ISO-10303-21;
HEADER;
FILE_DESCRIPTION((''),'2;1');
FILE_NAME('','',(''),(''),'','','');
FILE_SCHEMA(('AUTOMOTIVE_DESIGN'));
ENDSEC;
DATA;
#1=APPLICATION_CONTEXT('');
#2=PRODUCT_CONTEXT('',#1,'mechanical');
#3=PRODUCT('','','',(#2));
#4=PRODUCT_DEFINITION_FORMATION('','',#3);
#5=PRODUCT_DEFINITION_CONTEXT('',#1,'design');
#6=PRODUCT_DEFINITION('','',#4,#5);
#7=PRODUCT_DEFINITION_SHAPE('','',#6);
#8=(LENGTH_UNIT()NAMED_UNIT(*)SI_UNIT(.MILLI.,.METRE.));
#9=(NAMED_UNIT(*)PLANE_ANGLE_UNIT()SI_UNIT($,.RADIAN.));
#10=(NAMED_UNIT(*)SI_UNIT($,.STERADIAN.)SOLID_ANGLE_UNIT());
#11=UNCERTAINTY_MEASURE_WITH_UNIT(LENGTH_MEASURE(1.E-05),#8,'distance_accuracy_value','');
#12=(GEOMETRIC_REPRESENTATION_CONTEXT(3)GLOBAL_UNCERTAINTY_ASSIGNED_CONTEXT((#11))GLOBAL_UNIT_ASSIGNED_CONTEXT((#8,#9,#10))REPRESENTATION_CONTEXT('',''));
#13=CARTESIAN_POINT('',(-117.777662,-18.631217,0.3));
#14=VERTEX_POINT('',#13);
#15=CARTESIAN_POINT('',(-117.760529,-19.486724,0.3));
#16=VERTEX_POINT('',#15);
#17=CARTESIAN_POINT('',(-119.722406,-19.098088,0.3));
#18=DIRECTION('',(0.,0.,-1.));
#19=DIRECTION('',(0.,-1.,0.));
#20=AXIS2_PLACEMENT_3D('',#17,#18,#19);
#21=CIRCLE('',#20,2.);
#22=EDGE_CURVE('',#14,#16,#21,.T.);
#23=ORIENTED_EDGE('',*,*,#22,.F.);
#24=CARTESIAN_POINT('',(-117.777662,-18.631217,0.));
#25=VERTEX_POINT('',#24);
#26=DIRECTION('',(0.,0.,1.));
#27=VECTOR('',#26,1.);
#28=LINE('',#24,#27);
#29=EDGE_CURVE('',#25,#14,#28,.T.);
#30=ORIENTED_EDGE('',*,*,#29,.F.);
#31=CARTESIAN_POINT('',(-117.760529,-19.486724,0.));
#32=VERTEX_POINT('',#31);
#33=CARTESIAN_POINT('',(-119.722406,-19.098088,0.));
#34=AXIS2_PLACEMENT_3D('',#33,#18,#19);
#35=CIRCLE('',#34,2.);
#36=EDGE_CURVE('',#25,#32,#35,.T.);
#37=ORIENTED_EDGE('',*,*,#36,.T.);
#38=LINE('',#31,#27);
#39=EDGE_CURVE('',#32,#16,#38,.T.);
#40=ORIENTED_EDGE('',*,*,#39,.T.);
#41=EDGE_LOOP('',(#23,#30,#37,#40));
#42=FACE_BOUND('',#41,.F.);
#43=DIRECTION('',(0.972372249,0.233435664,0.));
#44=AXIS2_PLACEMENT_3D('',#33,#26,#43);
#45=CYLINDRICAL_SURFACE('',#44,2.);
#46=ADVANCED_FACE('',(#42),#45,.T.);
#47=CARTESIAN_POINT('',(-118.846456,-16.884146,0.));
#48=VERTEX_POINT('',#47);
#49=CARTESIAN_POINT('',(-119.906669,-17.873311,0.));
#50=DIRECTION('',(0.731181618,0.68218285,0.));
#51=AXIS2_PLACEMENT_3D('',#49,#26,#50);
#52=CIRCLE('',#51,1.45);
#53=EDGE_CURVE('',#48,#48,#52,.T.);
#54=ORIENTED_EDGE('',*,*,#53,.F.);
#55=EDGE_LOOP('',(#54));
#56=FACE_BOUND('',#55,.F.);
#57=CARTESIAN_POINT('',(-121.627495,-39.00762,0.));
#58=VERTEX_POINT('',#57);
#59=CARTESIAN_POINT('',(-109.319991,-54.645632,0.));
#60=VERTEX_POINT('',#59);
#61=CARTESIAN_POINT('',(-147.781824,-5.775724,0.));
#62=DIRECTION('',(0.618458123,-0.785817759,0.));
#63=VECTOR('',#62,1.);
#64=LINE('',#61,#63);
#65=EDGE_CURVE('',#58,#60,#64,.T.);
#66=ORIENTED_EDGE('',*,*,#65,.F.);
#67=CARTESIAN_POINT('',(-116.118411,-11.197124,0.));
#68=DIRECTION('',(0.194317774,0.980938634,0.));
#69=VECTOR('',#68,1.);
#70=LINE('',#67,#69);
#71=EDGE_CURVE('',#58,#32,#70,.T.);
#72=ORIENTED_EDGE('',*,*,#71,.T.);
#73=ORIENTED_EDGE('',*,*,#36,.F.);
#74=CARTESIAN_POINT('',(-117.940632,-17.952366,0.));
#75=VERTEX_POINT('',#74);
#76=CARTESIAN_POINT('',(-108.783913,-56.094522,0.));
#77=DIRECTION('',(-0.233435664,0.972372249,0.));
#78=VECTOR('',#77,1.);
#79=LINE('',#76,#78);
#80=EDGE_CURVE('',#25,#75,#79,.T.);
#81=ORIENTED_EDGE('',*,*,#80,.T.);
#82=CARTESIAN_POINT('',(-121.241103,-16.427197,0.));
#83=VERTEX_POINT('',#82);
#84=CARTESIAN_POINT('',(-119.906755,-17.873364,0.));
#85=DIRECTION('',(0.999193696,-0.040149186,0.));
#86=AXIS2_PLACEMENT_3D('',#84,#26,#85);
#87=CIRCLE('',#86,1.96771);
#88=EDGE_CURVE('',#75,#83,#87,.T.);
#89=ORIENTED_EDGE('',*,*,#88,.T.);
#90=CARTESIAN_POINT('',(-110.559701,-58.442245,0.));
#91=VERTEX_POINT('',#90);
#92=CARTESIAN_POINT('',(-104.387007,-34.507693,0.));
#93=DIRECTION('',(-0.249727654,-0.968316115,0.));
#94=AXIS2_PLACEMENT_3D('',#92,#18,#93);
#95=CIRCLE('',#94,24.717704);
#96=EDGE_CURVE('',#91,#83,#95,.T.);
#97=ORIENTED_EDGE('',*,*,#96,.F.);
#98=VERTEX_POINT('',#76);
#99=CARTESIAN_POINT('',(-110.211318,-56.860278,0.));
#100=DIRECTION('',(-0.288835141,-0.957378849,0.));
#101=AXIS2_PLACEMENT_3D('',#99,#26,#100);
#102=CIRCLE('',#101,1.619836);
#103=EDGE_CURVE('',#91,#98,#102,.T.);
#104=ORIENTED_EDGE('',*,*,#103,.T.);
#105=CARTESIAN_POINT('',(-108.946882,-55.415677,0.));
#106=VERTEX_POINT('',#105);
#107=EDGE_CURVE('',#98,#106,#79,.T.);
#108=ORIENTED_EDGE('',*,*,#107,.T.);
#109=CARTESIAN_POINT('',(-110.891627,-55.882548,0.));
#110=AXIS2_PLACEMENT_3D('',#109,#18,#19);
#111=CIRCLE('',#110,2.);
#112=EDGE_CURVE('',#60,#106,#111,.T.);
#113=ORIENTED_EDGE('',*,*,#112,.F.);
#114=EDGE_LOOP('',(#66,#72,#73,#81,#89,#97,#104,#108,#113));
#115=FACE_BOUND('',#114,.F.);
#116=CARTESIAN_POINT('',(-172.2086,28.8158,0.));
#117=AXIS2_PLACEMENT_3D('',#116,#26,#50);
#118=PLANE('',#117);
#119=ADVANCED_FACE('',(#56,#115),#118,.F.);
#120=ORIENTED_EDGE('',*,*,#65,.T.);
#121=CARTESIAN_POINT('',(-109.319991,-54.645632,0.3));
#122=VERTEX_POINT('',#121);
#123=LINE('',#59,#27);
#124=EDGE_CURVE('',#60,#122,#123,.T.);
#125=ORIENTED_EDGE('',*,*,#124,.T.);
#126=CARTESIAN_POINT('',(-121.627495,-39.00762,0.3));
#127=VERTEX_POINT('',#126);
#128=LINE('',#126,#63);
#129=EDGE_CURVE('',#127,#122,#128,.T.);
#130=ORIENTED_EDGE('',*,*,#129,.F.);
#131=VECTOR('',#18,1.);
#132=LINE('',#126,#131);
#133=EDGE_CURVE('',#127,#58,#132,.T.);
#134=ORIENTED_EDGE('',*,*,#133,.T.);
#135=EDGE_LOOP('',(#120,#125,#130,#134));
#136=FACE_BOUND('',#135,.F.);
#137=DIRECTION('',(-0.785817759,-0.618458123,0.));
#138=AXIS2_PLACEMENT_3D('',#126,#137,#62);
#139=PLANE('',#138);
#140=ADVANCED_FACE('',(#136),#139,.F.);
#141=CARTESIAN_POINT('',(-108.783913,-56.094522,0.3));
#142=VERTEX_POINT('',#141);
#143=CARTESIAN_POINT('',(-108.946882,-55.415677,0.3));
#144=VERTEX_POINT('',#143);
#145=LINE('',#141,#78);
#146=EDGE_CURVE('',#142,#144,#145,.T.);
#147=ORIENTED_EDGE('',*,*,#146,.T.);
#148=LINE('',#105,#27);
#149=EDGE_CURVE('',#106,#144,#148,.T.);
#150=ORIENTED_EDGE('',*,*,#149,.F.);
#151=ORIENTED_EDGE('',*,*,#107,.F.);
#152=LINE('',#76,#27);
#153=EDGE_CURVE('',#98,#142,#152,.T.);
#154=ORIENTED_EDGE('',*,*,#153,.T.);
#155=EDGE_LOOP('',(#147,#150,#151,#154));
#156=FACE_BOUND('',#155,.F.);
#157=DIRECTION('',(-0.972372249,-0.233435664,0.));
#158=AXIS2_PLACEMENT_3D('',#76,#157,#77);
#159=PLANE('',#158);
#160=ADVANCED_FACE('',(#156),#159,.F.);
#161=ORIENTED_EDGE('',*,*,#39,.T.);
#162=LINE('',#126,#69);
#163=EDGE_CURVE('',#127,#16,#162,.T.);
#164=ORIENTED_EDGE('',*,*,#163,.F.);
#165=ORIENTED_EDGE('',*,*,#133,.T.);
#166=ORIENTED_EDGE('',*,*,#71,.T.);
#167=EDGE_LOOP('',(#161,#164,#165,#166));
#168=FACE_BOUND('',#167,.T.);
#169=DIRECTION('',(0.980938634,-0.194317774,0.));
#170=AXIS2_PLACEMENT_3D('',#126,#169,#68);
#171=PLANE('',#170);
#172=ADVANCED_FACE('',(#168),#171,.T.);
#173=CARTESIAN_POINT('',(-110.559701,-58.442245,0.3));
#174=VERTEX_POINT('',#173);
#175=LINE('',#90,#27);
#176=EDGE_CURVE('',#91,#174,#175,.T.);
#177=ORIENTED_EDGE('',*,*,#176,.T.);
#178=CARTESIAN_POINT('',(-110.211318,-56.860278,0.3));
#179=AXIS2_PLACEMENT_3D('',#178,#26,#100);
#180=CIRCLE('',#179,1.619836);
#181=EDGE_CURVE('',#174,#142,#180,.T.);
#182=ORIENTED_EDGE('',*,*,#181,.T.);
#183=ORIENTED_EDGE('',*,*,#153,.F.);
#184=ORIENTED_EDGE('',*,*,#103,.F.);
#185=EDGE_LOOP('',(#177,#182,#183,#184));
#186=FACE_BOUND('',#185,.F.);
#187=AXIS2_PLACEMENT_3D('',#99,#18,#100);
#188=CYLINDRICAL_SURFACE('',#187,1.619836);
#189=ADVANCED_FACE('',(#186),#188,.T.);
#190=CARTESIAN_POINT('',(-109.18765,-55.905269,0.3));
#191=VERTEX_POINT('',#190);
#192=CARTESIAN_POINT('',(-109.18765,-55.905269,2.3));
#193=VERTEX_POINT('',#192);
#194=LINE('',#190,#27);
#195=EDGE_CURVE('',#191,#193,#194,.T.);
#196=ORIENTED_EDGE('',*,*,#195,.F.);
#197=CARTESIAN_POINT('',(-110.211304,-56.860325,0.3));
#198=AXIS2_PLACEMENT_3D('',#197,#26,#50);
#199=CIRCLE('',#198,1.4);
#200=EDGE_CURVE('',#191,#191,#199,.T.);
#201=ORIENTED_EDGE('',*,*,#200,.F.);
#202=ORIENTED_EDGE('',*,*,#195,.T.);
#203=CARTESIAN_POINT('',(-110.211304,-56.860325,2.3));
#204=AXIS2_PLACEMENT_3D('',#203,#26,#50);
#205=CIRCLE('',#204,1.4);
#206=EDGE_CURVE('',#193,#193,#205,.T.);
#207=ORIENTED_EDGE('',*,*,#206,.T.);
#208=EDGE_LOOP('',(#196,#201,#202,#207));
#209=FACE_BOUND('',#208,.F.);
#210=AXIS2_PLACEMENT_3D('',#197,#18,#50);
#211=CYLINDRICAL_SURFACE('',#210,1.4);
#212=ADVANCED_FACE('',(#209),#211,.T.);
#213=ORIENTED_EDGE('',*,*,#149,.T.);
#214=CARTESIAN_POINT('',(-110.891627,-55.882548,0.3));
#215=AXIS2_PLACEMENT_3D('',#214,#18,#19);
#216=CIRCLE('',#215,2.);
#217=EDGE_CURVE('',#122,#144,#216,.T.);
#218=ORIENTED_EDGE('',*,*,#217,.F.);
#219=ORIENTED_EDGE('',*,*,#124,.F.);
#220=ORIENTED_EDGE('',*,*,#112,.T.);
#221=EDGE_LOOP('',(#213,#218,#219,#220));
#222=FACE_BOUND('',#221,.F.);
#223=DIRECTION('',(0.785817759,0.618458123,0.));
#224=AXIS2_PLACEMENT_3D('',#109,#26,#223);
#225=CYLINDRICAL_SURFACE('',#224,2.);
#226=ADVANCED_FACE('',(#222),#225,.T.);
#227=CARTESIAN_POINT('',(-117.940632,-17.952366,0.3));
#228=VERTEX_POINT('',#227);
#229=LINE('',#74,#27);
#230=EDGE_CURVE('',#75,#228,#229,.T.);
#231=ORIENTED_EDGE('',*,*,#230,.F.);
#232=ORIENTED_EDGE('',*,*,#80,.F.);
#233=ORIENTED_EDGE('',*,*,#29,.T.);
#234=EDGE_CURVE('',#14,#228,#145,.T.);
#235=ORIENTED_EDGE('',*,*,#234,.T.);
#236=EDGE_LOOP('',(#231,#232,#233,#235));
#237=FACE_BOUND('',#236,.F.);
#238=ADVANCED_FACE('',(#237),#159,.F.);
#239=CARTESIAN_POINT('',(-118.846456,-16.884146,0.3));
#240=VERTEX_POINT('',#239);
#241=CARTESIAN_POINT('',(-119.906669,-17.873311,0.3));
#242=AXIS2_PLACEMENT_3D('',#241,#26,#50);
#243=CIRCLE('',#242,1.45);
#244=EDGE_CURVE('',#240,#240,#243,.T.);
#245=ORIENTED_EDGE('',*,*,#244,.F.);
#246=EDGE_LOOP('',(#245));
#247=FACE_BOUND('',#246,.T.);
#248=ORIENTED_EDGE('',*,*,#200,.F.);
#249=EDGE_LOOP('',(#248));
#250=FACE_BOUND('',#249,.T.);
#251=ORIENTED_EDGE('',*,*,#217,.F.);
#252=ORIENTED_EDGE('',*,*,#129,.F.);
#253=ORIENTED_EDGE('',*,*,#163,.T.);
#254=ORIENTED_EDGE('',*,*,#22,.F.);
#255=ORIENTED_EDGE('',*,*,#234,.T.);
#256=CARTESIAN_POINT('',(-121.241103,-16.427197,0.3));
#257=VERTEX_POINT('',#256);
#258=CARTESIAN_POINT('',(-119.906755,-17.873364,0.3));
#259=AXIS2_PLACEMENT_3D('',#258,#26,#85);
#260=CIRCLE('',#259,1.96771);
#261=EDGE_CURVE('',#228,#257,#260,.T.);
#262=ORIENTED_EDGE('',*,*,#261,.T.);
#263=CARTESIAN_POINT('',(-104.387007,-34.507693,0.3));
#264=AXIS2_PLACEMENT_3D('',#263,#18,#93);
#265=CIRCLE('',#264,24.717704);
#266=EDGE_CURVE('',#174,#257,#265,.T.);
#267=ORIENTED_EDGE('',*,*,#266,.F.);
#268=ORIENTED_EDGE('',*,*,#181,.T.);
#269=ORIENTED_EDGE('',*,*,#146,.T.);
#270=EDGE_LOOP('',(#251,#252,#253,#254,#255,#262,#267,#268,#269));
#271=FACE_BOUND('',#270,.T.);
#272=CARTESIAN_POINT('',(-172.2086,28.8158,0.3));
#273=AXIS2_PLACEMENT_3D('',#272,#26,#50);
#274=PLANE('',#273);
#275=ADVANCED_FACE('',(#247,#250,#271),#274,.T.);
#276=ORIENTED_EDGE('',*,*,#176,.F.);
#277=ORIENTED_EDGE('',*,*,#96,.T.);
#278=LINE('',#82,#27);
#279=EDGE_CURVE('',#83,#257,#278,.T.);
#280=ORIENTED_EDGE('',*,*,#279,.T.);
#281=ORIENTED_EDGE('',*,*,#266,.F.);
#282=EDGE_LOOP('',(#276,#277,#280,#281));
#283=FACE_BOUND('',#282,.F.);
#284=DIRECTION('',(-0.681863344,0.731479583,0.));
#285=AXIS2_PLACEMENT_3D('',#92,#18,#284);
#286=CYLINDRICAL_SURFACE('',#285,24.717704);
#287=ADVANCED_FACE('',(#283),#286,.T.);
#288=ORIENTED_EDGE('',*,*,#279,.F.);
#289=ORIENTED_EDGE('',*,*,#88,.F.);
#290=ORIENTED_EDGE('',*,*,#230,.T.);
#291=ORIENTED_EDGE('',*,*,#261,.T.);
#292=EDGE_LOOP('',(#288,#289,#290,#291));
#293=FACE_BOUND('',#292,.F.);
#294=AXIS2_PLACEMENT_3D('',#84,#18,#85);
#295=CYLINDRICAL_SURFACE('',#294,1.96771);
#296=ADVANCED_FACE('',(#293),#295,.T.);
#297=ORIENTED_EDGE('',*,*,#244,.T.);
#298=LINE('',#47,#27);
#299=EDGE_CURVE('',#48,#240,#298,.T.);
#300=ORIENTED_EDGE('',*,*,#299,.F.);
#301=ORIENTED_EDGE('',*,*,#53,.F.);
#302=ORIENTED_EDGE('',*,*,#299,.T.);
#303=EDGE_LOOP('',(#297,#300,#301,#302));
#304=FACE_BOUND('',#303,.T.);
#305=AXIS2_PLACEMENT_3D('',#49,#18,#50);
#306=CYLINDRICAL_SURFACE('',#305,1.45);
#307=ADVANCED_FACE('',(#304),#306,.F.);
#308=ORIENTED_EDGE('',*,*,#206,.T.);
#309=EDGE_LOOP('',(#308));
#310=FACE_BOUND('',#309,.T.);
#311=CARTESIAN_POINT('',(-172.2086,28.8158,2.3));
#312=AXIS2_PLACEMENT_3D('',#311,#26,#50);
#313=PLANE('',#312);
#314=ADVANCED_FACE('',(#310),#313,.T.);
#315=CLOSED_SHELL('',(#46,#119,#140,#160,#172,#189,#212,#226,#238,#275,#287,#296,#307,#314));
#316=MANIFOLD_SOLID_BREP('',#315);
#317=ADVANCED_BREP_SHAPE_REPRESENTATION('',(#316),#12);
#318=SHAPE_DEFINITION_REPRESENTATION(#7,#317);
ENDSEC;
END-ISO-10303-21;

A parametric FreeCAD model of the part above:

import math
import FreeCAD as App
import Part
import Sketcher
Q = App.Units.Quantity


def edges_at(feature, points):
    """Names of the edges that pass closest to the given points."""
    edges = feature.Shape.Edges
    near = lambda p: min(range(len(edges)), key=lambda i: edges[i].distToShape(Part.Vertex(*p))[0])
    return sorted({f"Edge{near(p) + 1}" for p in points})

doc = App.newDocument("Part")
body = doc.addObject("PartDesign::Body", "Body")

# Sketch on XY plane
sketch1 = body.newObject("Sketcher::SketchObject", "Sketch")
sketch1.AttachmentSupport = (doc.getObject("XY_Plane"), [""])
sketch1.MapMode = "FlatFace"
sketch1.addGeometry([
    Part.ArcOfCircle(Part.Circle(App.Vector(-119.906669, -17.873311, 0), App.Vector(0, 0, 1), 1.967625), math.radians(-2.302639), math.radians(132.699982)),  # 0
    Part.ArcOfCircle(Part.Circle(App.Vector(-104.387009, -34.507693, 0), App.Vector(0, 0, 1), 24.717702), math.radians(132.989421), math.radians(255.538609)),  # 1
    Part.ArcOfCircle(Part.Circle(App.Vector(-110.211304, -56.860325, 0), App.Vector(0, 0, 1), 1.619795), math.radians(-102.420366), math.radians(28.213821)),  # 2
    Part.LineSegment(App.Vector(-108.783913, -56.094522, 0), App.Vector(-117.940632, -17.952366, 0)),  # 3
    Part.Circle(App.Vector(-119.906669, -17.873311, 0), App.Vector(0, 0, 1), 1.45),  # 4
], False)
sketch1.addConstraint([
    Sketcher.Constraint("Coincident", 0, 2, 1, 1),
    Sketcher.Constraint("Coincident", 1, 2, 2, 1),
    Sketcher.Constraint("Coincident", 2, 2, 3, 1),
    Sketcher.Constraint("Coincident", 3, 2, 0, 1),
    Sketcher.Constraint("Coincident", 4, 3, 0, 3),
    Sketcher.Constraint("Diameter", 4, 2.9),
    Sketcher.Constraint("Angle", 3, Q("103.4994 deg")),
    Sketcher.Constraint("Radius", 0, 1.9676),
    Sketcher.Constraint("Radius", 1, 24.7177),
    Sketcher.Constraint("Radius", 2, 1.6198),
    Sketcher.Constraint("DistanceX", 1, 3, -1, 1, 104.387),
    Sketcher.Constraint("DistanceX", 0, 2, -1, 1, 121.241),
    Sketcher.Constraint("DistanceX", 2, 2, -1, 1, 108.784),
    Sketcher.Constraint("DistanceY", 2, 3, 0, 3, 38.987),
    Sketcher.Constraint("DistanceY", 0, 3, 0, 2, 1.446),
    Sketcher.Constraint("DistanceY", 1, 2, 2, 3, 1.582),
    Sketcher.Constraint("DistanceY", 0, 3, -1, 1, 17.8733),
])
pad1 = body.newObject("PartDesign::Pad", "Pad")
pad1.Profile = sketch1
pad1.Length = 0.3

# Sketch on XY plane
sketch2 = body.newObject("Sketcher::SketchObject", "Sketch001")
sketch2.AttachmentSupport = (doc.getObject("XY_Plane"), [""])
sketch2.MapMode = "FlatFace"
sketch2.AttachmentOffset = App.Placement(App.Vector(0, 0, 0.3), App.Rotation())
sketch2.addGeometry(Part.Circle(App.Vector(-110.211304, -56.860325, 0), App.Vector(0, 0, 1), 1.4), False)
sketch2.addConstraint([
    Sketcher.Constraint("Diameter", 0, 2.8),
    Sketcher.Constraint("DistanceX", 0, 3, -1, 1, 110.2113),
    Sketcher.Constraint("DistanceY", 0, 3, -1, 1, 56.8603),
])
pad2 = body.newObject("PartDesign::Pad", "Pad001")
pad2.Profile = sketch2
pad2.Length = 2

# Sketch on XY plane
sketch3 = body.newObject("Sketcher::SketchObject", "Sketch002")
sketch3.AttachmentSupport = (doc.getObject("XY_Plane"), [""])
sketch3.MapMode = "FlatFace"
sketch3.AttachmentOffset = App.Placement(App.Vector(0, 0, 0.3), App.Rotation())
sketch3.addGeometry([
    Part.LineSegment(App.Vector(-117.675395, -19.056961, 0), App.Vector(-121.627495, -39.00762, 0)),
    Part.LineSegment(App.Vector(-121.627495, -39.00762, 0), App.Vector(-109.049077, -54.989858, 0)),
    Part.LineSegment(App.Vector(-109.049077, -54.989858, 0), App.Vector(-117.675395, -19.056961, 0)),
], False)
sketch3.addConstraint([
    Sketcher.Constraint("Coincident", 0, 2, 1, 1),
    Sketcher.Constraint("Coincident", 1, 2, 2, 1),
    Sketcher.Constraint("Coincident", 2, 2, 0, 1),
    Sketcher.Constraint("Equal", 0, 1),
    Sketcher.Constraint("Angle", 2, Q("103.4994 deg")),
    Sketcher.Constraint("DistanceX", 1, 2, -1, 1, 109.049),
    Sketcher.Constraint("DistanceY", 2, 2, -1, 1, 19.057),
    Sketcher.Constraint("DistanceX", 0, 2, 2, 2, 3.952),
    Sketcher.Constraint("DistanceY", 1, 2, 2, 2, 35.933),
])
pocket1 = body.newObject("PartDesign::Pocket", "Pocket")
pocket1.Profile = sketch3
pocket1.Type = "ThroughAll"
doc.recompute()

fillet = body.newObject("PartDesign::Fillet", "Fillet")
fillet.Base = (pocket1, edges_at(pocket1, [(-109.048, -54.989, 0.15), (-117.675, -19.056, 0.15)]))
fillet.Radius = 2

doc.recompute()
